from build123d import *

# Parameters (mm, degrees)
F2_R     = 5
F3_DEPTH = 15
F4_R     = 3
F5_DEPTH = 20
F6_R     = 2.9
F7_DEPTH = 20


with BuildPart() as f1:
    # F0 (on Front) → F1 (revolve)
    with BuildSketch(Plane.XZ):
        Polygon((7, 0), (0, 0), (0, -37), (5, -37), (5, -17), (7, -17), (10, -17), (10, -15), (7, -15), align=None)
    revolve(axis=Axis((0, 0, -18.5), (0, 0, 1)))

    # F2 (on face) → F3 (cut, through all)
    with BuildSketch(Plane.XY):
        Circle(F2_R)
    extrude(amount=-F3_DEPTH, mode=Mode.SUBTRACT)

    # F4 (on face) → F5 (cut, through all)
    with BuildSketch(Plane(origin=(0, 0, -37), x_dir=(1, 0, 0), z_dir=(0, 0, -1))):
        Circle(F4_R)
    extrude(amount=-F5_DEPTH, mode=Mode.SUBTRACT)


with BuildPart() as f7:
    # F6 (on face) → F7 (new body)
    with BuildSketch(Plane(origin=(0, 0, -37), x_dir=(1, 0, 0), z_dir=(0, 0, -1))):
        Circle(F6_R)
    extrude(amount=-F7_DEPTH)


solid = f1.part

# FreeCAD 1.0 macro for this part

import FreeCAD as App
import Part
import Sketcher
Q = App.Units.Quantity


def add_polygon(sketch, points):
    """Adds a closed chain of lines whose ends are joined by coincident constraints."""
    first, n = sketch.GeometryCount, len(points)
    for a, b in zip(points, points[1:] + points[:1]):
        sketch.addGeometry(Part.LineSegment(App.Vector(*a, 0), App.Vector(*b, 0)), False)
    for i in range(n):
        sketch.addConstraint(Sketcher.Constraint("Coincident", first + i, 2, first + (i + 1) % n, 1))

doc = App.newDocument("Part")
body = doc.addObject("PartDesign::Body", "Body")

sketch1 = body.newObject("Sketcher::SketchObject", "Sketch")
sketch1.AttachmentSupport = (doc.getObject("XZ_Plane"), [""])
sketch1.MapMode = "FlatFace"
add_polygon(sketch1, [(7, 0), (0, 0), (0, -37), (5, -37), (5, -17), (10, -17), (10, -15), (7, -15)])
sketch1.addConstraint([
    Sketcher.Constraint("Horizontal", 0),
    Sketcher.Constraint("Vertical", 1),
    Sketcher.Constraint("Horizontal", 2),
    Sketcher.Constraint("Vertical", 3),
    Sketcher.Constraint("Horizontal", 4),
    Sketcher.Constraint("Vertical", 5),
    Sketcher.Constraint("Horizontal", 6),
    Sketcher.Constraint("Vertical", 7),
    Sketcher.Constraint("Coincident", 0, 2, -1, 1),
    Sketcher.Constraint("Equal", 2, 4),
    Sketcher.Constraint("DistanceX", 0, 2, 0, 1, Q("7 mm")),
    Sketcher.Constraint("DistanceX", 2, 1, 2, 2, Q("5 mm")),
    Sketcher.Constraint("DistanceY", 1, 2, 1, 1, Q("37 mm")),
    Sketcher.Constraint("DistanceY", 3, 1, 3, 2, Q("20 mm")),
    Sketcher.Constraint("DistanceY", 5, 1, 5, 2, Q("2 mm")),
])
revolution = body.newObject("PartDesign::Revolution", "Revolution")
revolution.Profile = sketch1
revolution.ReferenceAxis = (sketch1, ["V_Axis"])
revolution.Angle = 360

sketch2 = body.newObject("Sketcher::SketchObject", "Sketch001")
sketch2.AttachmentSupport = (doc.getObject("XY_Plane"), [""])
sketch2.MapMode = "FlatFace"
sketch2.addGeometry(Part.Circle(App.Vector(0, 0, 0), App.Vector(0, 0, 1), 5), False)
sketch2.addConstraint([
    Sketcher.Constraint("Coincident", 0, 3, -1, 1),
    Sketcher.Constraint("Diameter", 0, Q("10 mm")),
])
pocket1 = body.newObject("PartDesign::Pocket", "Pocket")
pocket1.Profile = sketch2
pocket1.Length = 15

sketch3 = body.newObject("Sketcher::SketchObject", "Sketch002")
sketch3.AttachmentSupport = (doc.getObject("XY_Plane"), [""])
sketch3.MapMode = "FlatFace"
sketch3.AttachmentOffset = App.Placement(App.Vector(0, 0, -37), App.Rotation())
sketch3.addGeometry(Part.Circle(App.Vector(0, 0, 0), App.Vector(0, 0, 1), 3), False)
sketch3.addConstraint([
    Sketcher.Constraint("Coincident", 0, 3, -1, 1),
    Sketcher.Constraint("Diameter", 0, Q("6 mm")),
])
pocket2 = body.newObject("PartDesign::Pocket", "Pocket001")
pocket2.Profile = sketch3
pocket2.Length = 20
pocket2.Reversed = True
body2 = doc.addObject("PartDesign::Body", "Body001")

sketch4 = body2.newObject("Sketcher::SketchObject", "Sketch003")
sketch4.AttachmentSupport = (doc.getObject("XY_Plane001"), [""])
sketch4.MapMode = "FlatFace"
sketch4.AttachmentOffset = App.Placement(App.Vector(0, 0, -37), App.Rotation())
sketch4.addGeometry(Part.Circle(App.Vector(0, 0, 0), App.Vector(0, 0, 1), 2.9), False)
sketch4.addConstraint([
    Sketcher.Constraint("Coincident", 0, 3, -1, 1),
    Sketcher.Constraint("Diameter", 0, Q("5.8 mm")),
])
pad1 = body2.newObject("PartDesign::Pad", "Pad")
pad1.Profile = sketch4
pad1.Length = 20
body2.Visibility = False

doc.recompute()
